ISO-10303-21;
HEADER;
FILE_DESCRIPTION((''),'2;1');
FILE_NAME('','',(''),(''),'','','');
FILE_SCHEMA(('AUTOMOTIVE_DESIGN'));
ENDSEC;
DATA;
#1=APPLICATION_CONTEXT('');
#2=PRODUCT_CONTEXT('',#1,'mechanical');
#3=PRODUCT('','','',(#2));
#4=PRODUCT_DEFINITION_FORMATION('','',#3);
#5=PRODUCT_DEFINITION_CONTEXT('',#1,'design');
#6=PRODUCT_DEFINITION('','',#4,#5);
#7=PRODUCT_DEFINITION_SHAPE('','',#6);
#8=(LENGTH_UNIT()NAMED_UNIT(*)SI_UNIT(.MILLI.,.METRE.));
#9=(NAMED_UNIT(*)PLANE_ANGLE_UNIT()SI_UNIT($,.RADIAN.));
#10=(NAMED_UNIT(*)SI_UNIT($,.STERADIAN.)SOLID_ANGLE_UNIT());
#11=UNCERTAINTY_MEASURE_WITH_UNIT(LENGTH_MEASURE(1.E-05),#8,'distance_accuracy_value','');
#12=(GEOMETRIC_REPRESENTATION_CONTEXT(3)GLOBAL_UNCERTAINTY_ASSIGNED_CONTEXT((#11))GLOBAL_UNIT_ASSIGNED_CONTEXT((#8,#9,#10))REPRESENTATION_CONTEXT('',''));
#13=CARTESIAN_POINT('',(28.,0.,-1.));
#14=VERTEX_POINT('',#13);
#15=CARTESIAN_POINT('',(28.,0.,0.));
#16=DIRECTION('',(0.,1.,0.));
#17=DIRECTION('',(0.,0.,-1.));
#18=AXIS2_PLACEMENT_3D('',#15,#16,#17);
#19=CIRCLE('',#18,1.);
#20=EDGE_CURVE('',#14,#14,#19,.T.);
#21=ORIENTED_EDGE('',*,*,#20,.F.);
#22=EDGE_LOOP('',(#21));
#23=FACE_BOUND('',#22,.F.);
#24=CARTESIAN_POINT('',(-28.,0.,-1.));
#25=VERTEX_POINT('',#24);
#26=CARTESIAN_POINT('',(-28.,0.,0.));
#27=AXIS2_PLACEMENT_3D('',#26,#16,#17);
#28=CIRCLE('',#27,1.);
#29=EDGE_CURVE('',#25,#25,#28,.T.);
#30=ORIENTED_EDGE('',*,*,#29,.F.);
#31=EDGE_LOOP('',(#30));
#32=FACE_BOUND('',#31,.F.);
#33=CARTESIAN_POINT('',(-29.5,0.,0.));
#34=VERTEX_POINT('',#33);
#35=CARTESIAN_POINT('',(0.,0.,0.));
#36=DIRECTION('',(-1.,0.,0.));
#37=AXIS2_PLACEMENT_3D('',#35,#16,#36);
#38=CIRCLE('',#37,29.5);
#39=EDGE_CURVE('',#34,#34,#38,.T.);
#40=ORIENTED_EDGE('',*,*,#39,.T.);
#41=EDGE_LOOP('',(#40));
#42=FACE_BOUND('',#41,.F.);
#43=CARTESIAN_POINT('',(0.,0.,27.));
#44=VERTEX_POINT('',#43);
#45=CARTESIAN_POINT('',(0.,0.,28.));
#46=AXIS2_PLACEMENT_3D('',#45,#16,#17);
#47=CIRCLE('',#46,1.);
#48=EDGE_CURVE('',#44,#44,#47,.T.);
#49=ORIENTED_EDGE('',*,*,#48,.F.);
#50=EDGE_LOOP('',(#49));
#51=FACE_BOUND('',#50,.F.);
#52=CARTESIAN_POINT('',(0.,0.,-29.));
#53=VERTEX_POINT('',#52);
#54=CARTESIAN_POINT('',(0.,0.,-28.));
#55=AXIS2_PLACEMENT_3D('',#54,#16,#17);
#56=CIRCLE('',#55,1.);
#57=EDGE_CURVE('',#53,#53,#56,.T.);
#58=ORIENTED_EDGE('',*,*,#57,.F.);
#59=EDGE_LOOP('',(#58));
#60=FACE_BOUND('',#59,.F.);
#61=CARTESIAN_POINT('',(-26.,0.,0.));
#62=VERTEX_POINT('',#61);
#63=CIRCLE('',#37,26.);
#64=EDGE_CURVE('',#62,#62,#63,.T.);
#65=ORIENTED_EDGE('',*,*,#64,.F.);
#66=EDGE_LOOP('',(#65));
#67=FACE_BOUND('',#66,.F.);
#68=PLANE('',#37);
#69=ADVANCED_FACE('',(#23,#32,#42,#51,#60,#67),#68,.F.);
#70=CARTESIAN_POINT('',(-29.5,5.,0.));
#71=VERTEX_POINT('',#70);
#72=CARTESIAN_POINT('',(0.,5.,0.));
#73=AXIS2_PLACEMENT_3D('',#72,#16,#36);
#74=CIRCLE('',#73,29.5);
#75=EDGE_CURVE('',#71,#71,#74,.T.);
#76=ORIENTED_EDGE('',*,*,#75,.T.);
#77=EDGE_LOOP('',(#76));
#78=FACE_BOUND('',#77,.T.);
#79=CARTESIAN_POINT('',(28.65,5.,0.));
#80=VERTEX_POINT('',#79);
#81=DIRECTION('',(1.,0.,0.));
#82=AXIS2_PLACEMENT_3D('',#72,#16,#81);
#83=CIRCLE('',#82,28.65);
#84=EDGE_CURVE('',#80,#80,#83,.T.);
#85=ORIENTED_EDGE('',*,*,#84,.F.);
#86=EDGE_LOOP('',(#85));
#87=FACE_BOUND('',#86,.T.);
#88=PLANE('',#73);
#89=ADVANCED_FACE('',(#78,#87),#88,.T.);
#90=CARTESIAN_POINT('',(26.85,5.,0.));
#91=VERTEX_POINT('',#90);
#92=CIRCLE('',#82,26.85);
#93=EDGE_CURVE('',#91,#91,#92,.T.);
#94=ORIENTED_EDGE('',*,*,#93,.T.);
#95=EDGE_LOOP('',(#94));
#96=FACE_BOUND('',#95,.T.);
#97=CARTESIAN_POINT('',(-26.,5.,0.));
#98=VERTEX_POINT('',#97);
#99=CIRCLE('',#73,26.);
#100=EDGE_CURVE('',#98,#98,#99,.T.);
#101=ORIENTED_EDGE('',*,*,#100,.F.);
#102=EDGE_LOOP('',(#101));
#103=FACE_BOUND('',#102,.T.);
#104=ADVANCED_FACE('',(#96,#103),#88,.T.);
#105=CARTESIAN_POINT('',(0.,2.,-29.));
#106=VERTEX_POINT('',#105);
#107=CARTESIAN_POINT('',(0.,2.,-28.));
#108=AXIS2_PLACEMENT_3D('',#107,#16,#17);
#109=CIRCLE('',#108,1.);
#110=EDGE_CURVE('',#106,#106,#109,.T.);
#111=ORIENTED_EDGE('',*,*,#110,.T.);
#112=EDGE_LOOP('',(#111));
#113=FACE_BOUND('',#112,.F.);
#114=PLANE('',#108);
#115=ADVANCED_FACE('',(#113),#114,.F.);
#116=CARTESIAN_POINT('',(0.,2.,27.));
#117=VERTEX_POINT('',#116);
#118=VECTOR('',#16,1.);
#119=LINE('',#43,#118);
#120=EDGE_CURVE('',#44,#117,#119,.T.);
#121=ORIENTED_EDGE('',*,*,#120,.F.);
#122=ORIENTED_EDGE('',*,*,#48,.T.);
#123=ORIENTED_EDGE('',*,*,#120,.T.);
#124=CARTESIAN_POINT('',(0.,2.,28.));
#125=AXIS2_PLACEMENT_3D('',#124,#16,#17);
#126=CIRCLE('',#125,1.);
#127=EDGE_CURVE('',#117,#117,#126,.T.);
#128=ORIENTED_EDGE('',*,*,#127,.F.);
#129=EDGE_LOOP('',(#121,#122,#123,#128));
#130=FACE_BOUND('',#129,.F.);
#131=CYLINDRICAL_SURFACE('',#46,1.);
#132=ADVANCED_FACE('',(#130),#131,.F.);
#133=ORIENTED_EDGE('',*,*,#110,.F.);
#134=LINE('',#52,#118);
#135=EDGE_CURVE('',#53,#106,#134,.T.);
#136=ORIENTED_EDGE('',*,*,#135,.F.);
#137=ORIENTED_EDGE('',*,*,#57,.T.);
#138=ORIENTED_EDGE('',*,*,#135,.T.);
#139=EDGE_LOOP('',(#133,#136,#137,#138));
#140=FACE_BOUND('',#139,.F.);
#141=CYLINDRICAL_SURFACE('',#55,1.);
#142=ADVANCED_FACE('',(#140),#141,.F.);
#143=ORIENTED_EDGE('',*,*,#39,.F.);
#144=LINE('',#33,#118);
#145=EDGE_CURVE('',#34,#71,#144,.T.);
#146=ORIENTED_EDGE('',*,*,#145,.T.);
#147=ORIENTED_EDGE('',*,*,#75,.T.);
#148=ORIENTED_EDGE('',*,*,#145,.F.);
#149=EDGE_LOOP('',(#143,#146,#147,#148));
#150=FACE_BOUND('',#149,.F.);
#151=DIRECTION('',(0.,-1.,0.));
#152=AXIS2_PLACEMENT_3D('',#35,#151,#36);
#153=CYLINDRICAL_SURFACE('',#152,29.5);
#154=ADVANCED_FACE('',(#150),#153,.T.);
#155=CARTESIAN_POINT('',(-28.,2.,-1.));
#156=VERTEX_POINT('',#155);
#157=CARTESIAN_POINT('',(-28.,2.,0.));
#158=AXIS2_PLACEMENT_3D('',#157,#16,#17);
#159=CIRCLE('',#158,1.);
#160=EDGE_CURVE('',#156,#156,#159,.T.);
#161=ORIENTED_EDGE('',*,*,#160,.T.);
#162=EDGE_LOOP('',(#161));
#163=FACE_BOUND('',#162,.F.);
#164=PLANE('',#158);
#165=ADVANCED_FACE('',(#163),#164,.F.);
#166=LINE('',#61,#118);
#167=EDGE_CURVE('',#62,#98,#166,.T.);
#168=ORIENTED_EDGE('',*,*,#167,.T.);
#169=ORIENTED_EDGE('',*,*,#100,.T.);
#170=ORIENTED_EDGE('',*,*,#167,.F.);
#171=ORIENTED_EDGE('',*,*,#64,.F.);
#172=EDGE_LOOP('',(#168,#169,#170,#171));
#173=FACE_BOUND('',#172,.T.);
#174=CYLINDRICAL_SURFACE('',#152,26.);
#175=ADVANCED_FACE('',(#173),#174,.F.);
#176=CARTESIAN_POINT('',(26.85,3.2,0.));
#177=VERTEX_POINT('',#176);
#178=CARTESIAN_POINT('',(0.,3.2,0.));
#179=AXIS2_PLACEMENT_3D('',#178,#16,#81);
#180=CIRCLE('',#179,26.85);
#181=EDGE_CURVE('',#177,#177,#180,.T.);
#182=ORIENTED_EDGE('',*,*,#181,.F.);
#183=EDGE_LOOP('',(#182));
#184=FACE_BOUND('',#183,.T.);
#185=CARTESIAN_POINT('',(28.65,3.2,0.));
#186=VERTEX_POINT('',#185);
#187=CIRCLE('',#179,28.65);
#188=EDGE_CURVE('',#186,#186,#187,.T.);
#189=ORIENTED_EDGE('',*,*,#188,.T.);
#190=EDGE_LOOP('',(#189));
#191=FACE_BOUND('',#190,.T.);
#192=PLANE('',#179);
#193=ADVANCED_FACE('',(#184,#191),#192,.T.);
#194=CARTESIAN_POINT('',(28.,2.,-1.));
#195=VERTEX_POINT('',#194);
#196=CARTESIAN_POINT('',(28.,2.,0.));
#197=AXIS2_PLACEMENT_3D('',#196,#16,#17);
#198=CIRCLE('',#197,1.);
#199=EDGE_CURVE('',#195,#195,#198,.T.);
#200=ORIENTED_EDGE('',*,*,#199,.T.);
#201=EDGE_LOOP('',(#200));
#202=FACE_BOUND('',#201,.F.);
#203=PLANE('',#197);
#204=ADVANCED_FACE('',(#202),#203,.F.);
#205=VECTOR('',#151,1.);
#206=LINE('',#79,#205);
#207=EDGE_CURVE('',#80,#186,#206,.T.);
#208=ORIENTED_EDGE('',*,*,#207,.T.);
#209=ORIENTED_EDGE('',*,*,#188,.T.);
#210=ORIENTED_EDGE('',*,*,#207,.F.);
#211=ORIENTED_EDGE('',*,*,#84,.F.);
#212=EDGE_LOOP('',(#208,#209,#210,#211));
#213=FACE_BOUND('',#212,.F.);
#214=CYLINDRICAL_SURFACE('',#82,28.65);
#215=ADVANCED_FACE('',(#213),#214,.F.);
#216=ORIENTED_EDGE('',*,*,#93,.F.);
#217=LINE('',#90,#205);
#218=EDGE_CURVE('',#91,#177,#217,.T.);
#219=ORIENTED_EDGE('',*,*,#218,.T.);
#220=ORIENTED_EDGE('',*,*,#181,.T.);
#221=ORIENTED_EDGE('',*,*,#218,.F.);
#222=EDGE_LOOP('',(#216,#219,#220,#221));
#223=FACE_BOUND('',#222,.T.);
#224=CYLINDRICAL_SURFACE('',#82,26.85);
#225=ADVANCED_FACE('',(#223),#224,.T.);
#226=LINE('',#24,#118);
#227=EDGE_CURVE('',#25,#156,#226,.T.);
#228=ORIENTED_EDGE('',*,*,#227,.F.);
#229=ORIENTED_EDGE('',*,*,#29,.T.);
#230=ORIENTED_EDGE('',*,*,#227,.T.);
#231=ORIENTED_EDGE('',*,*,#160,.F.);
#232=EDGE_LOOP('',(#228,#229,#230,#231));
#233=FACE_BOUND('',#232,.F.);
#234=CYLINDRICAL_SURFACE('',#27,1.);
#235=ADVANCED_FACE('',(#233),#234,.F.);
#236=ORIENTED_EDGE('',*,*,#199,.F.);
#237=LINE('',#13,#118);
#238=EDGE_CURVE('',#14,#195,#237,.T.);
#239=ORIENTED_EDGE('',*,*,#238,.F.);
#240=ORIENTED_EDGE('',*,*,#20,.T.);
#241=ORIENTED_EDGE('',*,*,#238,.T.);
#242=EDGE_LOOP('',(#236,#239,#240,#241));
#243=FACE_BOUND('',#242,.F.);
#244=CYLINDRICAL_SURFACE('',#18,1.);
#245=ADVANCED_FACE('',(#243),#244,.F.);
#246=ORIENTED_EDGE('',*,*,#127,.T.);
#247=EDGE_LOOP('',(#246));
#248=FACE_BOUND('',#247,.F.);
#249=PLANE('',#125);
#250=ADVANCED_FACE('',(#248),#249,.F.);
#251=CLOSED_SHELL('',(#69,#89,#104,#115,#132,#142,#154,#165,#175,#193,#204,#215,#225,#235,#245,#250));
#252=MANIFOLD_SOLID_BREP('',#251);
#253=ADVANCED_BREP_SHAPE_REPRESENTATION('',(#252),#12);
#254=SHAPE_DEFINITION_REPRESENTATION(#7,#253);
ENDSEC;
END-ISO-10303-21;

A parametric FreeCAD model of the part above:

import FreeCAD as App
import Part
import Sketcher
from FreeCAD import Vector

doc = App.newDocument("Part")
body = doc.addObject("PartDesign::Body", "Body")

# Sketch on XZ plane
sketch1 = doc.addObject("Sketcher::SketchObject", "Sketch")
body.addObject(sketch1)
sketch1.AttachmentSupport = (doc.XZ_Plane, [""])
sketch1.MapMode = "FlatFace"
sketch1.addGeometry([
    Part.Circle(Vector(0, 0, 0), Vector(0, 0, 1), 30),
    Part.Circle(Vector(0, 0, 0), Vector(0, 0, 1), 26),
], False)
sketch1.addConstraint([
    Sketcher.Constraint("Coincident", 0, 3, -1, 1),
    Sketcher.Constraint("Coincident", 1, 3, -1, 1),
    Sketcher.Constraint("Diameter", 0, 59.0),
    Sketcher.Constraint("Diameter", 1, 52.0),
])
pad1 = doc.addObject("PartDesign::Pad", "Pad")
body.addObject(pad1)
pad1.Profile = sketch1
pad1.Length = 5
pad1.Reversed = True

# Sketch on XZ plane
sketch2 = doc.addObject("Sketcher::SketchObject", "Sketch001")
body.addObject(sketch2)
sketch2.AttachmentSupport = (doc.XZ_Plane, [""])
sketch2.MapMode = "FlatFace"
sketch2.AttachmentOffset = App.Placement(Vector(0, 0, -5), App.Rotation())
sketch2.addGeometry([
    Part.Circle(Vector(0, 0, 0), Vector(0, 0, 1), 29),
    Part.Circle(Vector(0, 0, 0), Vector(0, 0, 1), 27),
], False)
sketch2.addConstraint([
    Sketcher.Constraint("Coincident", 0, 3, -1, 1),
    Sketcher.Constraint("Coincident", 1, 3, -1, 1),
    Sketcher.Constraint("Diameter", 0, 57.3),
    Sketcher.Constraint("Diameter", 1, 53.7),
])
pocket1 = doc.addObject("PartDesign::Pocket", "Pocket")
body.addObject(pocket1)
pocket1.Profile = sketch2
pocket1.Length = 1.8
pocket1.Reversed = True

# Sketch on XZ plane
sketch3 = doc.addObject("Sketcher::SketchObject", "Sketch002")
body.addObject(sketch3)
sketch3.AttachmentSupport = (doc.XZ_Plane, [""])
sketch3.MapMode = "FlatFace"
sketch3.addGeometry(Part.Circle(Vector(28, 0, 0), Vector(0, 0, 1), 1), False)
sketch3.addConstraint([
    Sketcher.Constraint("PointOnObject", 0, 3, -1),
    Sketcher.Constraint("Diameter", 0, 2.0),
    Sketcher.Constraint("DistanceX", -1, 1, 0, 3, 28.0),
])
doc.recompute()
hole = doc.addObject("PartDesign::Hole", "Hole")
body.addObject(hole)
hole.Profile = sketch3
hole.ThreadType = "None"
hole.Diameter = 2
hole.DepthType = "Dimension"
hole.Depth = 2
hole.DrillPoint = "Flat"

# Sketch on XZ plane
sketch4 = doc.addObject("Sketcher::SketchObject", "Sketch003")
body.addObject(sketch4)
sketch4.AttachmentSupport = (doc.XZ_Plane, [""])
sketch4.MapMode = "FlatFace"
sketch4.addGeometry(Part.Circle(Vector(0, -28, 0), Vector(0, 0, 1), 1), False)
sketch4.addConstraint([
    Sketcher.Constraint("PointOnObject", 0, 3, -2),
    Sketcher.Constraint("Diameter", 0, 2.0),
    Sketcher.Constraint("DistanceY", 0, 3, -1, 1, 28.0),
])
doc.recompute()
hole2 = doc.addObject("PartDesign::Hole", "Hole001")
body.addObject(hole2)
hole2.Profile = sketch4
hole2.ThreadType = "None"
hole2.Diameter = 2
hole2.DepthType = "Dimension"
hole2.Depth = 2
hole2.DrillPoint = "Flat"

# Sketch on XZ plane
sketch5 = doc.addObject("Sketcher::SketchObject", "Sketch004")
body.addObject(sketch5)
sketch5.AttachmentSupport = (doc.XZ_Plane, [""])
sketch5.MapMode = "FlatFace"
sketch5.addGeometry(Part.Circle(Vector(0, 28, 0), Vector(0, 0, 1), 1), False)
sketch5.addConstraint([
    Sketcher.Constraint("PointOnObject", 0, 3, -2),
    Sketcher.Constraint("Diameter", 0, 2.0),
    Sketcher.Constraint("DistanceY", -1, 1, 0, 3, 28.0),
])
doc.recompute()
hole3 = doc.addObject("PartDesign::Hole", "Hole002")
body.addObject(hole3)
hole3.Profile = sketch5
hole3.ThreadType = "None"
hole3.Diameter = 2
hole3.DepthType = "Dimension"
hole3.Depth = 2
hole3.DrillPoint = "Flat"

# Sketch on XZ plane
sketch6 = doc.addObject("Sketcher::SketchObject", "Sketch005")
body.addObject(sketch6)
sketch6.AttachmentSupport = (doc.XZ_Plane, [""])
sketch6.MapMode = "FlatFace"
sketch6.addGeometry(Part.Circle(Vector(-28, 0, 0), Vector(0, 0, 1), 1), False)
sketch6.addConstraint([
    Sketcher.Constraint("PointOnObject", 0, 3, -1),
    Sketcher.Constraint("Diameter", 0, 2.0),
    Sketcher.Constraint("DistanceX", 0, 3, -1, 1, 28.0),
])
doc.recompute()
hole4 = doc.addObject("PartDesign::Hole", "Hole003")
body.addObject(hole4)
hole4.Profile = sketch6
hole4.ThreadType = "None"
hole4.Diameter = 2
hole4.DepthType = "Dimension"
hole4.Depth = 2
hole4.DrillPoint = "Flat"

doc.recompute()
